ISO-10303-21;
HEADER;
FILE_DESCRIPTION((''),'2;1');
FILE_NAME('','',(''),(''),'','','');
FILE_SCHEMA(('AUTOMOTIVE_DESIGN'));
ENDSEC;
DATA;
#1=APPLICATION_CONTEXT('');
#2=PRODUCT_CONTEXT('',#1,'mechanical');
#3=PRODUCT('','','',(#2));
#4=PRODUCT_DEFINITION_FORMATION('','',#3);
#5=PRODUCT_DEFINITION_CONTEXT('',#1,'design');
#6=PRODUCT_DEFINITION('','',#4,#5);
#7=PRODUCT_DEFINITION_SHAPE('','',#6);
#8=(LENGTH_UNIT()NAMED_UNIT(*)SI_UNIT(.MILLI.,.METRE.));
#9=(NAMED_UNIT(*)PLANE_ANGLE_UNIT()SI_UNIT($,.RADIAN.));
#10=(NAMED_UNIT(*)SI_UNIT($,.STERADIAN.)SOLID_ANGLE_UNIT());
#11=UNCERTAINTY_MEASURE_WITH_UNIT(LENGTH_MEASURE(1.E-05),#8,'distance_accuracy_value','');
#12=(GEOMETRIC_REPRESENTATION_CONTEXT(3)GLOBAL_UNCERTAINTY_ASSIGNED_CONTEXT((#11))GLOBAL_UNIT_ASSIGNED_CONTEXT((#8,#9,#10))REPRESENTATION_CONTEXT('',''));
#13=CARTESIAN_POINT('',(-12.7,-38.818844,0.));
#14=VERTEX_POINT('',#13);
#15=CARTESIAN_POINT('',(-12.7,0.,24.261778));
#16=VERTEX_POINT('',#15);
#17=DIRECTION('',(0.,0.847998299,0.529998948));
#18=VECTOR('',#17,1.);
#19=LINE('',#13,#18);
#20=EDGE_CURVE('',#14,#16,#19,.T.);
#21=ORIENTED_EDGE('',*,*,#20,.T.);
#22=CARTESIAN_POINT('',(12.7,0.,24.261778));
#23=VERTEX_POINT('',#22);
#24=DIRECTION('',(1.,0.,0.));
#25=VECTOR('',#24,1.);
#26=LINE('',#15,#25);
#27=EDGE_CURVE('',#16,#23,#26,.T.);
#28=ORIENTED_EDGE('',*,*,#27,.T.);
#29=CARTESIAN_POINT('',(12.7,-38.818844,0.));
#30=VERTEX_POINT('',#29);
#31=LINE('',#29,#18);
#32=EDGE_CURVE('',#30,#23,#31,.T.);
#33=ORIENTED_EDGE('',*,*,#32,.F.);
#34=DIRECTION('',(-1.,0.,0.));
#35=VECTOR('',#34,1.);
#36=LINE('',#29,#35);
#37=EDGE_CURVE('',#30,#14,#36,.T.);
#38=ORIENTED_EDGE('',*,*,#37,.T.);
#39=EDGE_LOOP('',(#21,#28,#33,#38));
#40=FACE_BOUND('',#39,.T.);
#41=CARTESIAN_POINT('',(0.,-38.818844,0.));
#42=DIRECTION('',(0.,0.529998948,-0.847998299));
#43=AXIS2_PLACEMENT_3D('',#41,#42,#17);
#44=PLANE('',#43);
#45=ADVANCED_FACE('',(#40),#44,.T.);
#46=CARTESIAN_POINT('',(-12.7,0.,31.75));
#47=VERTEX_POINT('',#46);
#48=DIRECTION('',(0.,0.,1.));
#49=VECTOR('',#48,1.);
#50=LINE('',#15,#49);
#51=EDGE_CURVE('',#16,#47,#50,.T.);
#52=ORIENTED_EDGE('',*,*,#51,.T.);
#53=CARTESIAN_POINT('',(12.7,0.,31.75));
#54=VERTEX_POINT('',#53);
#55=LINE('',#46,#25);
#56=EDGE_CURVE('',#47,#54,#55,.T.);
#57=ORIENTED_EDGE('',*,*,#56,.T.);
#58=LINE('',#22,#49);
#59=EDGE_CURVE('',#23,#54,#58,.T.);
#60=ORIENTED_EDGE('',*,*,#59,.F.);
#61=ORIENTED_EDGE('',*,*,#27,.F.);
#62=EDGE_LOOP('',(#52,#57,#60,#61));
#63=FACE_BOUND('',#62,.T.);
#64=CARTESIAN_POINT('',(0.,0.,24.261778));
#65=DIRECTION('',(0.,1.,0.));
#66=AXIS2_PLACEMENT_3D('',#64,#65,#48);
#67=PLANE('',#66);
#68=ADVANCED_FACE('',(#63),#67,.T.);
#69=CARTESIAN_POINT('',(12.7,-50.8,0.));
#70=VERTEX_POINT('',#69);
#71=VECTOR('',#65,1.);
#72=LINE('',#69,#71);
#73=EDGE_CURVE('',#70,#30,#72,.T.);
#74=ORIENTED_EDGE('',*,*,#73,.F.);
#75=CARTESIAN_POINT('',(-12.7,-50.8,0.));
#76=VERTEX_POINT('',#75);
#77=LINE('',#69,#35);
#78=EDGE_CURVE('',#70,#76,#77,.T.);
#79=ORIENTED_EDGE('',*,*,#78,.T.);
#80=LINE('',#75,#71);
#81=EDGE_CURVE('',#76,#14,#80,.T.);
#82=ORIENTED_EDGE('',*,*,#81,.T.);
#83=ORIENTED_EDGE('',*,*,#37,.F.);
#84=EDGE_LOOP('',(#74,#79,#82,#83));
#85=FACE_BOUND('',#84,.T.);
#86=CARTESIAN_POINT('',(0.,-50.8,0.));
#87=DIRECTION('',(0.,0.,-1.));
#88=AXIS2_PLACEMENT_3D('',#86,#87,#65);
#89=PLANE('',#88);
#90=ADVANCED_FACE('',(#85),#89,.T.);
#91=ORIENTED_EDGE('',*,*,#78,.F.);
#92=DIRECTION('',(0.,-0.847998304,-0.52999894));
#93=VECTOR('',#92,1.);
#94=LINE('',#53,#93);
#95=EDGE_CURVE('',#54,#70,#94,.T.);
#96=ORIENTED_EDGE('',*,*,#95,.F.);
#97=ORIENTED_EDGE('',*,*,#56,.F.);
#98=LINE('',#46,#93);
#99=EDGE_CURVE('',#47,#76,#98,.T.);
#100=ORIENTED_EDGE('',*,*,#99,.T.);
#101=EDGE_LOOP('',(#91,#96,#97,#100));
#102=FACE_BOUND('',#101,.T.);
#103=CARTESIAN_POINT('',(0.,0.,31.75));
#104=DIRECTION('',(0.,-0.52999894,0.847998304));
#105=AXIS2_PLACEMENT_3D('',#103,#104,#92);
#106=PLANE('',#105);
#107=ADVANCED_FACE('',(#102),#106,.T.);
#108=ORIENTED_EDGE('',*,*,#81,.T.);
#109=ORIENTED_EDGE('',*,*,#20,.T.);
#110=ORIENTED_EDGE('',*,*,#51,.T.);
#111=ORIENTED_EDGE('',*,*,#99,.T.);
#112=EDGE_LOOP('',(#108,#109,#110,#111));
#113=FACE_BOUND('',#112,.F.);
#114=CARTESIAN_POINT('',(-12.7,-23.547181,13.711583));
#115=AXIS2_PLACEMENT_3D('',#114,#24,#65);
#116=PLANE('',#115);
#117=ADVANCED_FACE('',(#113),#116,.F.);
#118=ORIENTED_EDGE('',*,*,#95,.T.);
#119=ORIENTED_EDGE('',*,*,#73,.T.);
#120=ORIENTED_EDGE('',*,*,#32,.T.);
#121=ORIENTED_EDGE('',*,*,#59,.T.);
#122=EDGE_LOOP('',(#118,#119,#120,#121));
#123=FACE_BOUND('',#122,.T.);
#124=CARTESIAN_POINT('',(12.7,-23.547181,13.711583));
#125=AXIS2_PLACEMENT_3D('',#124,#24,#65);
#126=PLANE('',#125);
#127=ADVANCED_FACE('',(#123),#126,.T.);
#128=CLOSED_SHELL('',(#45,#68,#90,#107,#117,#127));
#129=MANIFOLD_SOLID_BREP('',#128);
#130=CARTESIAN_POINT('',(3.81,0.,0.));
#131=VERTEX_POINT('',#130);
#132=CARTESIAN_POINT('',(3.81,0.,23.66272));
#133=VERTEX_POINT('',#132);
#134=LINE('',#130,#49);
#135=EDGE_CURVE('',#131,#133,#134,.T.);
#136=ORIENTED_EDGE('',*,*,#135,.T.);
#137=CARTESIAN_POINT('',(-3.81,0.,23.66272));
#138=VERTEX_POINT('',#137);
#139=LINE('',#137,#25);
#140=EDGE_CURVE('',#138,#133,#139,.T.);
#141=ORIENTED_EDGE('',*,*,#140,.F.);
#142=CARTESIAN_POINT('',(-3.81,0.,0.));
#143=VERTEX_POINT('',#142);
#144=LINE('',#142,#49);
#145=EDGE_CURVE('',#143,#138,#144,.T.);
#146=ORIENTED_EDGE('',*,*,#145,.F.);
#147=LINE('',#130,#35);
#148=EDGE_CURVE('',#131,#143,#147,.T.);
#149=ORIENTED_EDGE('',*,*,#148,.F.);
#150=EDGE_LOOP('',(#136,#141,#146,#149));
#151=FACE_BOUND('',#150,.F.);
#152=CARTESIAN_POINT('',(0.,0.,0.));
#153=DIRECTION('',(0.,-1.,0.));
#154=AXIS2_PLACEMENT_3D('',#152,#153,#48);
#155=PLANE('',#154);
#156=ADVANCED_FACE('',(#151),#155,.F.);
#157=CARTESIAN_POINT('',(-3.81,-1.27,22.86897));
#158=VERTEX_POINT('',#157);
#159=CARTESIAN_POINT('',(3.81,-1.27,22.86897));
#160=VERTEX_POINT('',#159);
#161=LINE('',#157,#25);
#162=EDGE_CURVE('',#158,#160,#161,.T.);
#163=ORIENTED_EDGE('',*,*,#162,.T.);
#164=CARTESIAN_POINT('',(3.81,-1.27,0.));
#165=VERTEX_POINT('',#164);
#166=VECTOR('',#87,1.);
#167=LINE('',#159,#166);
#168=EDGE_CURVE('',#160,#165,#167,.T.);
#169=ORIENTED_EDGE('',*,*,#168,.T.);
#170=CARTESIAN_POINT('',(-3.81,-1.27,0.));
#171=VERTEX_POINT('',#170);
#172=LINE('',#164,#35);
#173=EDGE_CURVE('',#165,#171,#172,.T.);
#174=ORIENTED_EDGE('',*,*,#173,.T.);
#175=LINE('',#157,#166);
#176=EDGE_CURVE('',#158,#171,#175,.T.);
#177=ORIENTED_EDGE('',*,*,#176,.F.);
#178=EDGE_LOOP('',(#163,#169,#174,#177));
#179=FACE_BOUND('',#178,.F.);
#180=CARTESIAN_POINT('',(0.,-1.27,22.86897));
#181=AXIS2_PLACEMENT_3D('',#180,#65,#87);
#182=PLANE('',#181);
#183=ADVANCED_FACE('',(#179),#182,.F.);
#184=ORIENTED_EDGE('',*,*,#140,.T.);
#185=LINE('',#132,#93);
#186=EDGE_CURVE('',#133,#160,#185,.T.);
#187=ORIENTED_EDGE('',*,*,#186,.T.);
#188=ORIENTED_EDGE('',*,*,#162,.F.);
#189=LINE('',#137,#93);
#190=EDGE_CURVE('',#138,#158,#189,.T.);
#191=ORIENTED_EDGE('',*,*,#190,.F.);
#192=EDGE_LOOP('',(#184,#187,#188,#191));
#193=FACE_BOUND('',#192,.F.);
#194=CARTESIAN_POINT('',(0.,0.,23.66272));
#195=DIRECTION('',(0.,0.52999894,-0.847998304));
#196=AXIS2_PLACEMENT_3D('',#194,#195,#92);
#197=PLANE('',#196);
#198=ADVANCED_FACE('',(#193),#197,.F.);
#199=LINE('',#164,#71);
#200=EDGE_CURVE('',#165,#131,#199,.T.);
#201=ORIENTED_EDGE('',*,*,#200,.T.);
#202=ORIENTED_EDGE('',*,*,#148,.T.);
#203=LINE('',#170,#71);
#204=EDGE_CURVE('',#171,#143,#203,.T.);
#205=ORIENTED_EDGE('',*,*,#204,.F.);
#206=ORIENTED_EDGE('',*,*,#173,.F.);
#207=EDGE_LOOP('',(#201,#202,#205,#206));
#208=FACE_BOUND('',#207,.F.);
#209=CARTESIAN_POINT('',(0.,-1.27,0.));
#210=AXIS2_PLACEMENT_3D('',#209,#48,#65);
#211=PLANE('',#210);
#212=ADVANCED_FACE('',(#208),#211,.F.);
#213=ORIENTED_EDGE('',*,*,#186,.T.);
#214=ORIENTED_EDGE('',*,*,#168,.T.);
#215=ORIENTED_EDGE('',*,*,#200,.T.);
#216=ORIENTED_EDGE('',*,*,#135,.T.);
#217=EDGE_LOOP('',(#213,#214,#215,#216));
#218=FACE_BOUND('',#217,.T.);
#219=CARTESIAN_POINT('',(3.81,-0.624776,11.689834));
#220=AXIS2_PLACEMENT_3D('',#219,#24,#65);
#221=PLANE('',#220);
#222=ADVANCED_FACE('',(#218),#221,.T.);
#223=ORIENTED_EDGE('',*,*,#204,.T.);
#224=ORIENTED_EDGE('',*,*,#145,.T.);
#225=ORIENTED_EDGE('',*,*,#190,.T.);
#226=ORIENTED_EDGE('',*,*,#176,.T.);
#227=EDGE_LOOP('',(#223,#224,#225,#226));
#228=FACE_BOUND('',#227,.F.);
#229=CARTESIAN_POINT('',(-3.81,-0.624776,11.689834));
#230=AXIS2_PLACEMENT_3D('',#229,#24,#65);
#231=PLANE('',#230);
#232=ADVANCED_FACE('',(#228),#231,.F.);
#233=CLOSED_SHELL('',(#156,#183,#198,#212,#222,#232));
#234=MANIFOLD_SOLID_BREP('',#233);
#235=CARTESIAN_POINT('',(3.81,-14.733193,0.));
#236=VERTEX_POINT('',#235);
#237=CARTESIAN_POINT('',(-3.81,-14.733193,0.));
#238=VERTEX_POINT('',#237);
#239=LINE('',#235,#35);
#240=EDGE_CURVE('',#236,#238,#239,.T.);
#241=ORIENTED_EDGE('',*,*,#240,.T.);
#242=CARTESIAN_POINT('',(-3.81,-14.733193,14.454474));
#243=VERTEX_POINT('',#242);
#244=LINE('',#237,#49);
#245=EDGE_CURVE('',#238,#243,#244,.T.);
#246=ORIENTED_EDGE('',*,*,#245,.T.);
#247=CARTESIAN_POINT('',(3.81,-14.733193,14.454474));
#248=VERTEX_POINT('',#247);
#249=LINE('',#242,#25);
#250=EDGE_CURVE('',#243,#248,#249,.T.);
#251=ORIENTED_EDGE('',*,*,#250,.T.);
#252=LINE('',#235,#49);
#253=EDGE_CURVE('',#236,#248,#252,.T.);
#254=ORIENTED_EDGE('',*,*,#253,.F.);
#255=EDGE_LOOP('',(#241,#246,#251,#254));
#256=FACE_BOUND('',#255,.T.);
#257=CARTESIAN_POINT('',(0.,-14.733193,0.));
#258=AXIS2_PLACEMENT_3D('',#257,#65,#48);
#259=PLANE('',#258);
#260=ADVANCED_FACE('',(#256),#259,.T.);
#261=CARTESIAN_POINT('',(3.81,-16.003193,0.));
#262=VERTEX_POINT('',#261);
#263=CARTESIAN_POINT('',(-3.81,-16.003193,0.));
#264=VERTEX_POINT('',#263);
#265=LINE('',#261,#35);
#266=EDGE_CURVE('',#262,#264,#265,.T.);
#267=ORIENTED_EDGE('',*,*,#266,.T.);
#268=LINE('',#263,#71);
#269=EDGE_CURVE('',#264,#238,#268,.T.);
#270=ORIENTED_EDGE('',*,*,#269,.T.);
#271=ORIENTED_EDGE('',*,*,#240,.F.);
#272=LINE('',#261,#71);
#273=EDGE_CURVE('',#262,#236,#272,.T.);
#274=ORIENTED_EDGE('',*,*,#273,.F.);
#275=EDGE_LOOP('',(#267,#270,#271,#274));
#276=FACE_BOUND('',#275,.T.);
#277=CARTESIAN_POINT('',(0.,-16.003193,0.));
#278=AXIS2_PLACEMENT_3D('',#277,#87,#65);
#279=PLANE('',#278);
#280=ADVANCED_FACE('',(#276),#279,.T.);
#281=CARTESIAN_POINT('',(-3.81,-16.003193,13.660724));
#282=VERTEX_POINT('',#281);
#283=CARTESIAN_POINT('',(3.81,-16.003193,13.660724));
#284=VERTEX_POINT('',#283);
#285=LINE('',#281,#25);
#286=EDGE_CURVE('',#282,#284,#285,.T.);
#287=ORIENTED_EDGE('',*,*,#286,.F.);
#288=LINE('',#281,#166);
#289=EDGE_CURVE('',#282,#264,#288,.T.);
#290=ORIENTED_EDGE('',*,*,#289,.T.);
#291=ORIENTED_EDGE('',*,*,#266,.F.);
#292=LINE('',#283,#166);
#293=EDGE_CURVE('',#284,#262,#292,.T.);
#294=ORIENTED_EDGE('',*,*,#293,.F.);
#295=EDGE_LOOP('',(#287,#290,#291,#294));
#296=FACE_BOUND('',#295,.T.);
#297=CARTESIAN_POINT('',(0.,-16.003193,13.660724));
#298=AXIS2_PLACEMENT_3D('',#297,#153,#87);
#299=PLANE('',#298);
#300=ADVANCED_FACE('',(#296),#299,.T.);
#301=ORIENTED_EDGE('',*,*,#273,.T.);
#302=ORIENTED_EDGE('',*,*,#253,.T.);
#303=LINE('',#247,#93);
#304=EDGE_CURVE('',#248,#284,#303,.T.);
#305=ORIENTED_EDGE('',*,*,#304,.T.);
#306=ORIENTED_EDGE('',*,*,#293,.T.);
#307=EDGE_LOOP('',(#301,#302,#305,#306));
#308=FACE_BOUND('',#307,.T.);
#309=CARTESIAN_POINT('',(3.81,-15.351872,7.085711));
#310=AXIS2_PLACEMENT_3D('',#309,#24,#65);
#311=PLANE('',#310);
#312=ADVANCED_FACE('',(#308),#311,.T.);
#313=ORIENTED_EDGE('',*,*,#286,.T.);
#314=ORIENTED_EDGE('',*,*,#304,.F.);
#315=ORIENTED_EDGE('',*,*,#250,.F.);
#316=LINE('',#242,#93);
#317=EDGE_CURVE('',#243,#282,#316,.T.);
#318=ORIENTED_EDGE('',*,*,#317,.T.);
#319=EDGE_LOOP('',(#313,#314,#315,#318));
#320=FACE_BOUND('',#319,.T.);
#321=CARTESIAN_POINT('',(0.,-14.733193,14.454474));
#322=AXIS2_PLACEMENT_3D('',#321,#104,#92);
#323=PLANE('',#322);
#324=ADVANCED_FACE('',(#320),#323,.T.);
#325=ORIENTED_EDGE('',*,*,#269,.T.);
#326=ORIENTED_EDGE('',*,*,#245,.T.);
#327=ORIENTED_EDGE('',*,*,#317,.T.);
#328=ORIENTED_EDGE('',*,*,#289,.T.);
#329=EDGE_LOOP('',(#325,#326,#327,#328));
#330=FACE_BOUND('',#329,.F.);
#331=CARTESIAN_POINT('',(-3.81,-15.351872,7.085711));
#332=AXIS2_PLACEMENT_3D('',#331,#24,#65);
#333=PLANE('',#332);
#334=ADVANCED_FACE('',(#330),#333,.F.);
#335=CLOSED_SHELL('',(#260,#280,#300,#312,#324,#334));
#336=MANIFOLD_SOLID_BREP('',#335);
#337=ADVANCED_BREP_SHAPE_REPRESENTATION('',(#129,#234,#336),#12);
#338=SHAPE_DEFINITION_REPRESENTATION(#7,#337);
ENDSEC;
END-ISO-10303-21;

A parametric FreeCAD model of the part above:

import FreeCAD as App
import Part
import Sketcher
from FreeCAD import Vector
Q = App.Units.Quantity

doc = App.newDocument("Part")
params = doc.addObject("Spreadsheet::Sheet", "Params")
for row, (alias, value) in enumerate([
    ("pad1_length", "1 in"),
    ("sketch2_width", "0.05 in"),
    ("pad2_length", "0.3 in"),
], start=1):
    params.set(f"A{row}", alias)
    params.set(f"B{row}", "=" + value)
    params.setAlias(f"B{row}", alias)

body = doc.addObject("PartDesign::Body", "Body")

# Sketch on YZ plane
sketch1 = body.newObject("Sketcher::SketchObject", "Sketch")
sketch1.AttachmentSupport = (doc.getObject("YZ_Plane"), [""])
sketch1.MapMode = "FlatFace"
sketch1.addGeometry(Part.LineSegment(Vector(-39, 0, 0), Vector(0, 24, 0)), False)
sketch1.addGeometry(Part.LineSegment(Vector(0, 24, 0), Vector(0, 32, 0)), False)
sketch1.addGeometry(Part.LineSegment(Vector(0, 32, 0), Vector(-51, 0, 0)), False)
sketch1.addGeometry(Part.LineSegment(Vector(-51, 0, 0), Vector(-39, 0, 0)), False)
sketch1.addConstraint(Sketcher.Constraint("Coincident", 0, 2, 1, 1))
sketch1.addConstraint(Sketcher.Constraint("Coincident", 1, 2, 2, 1))
sketch1.addConstraint(Sketcher.Constraint("Coincident", 2, 2, 3, 1))
sketch1.addConstraint(Sketcher.Constraint("Coincident", 3, 2, 0, 1))
sketch1.addConstraint(Sketcher.Constraint("Vertical", 1))
sketch1.addConstraint(Sketcher.Constraint("Horizontal", 3))
sketch1.addConstraint(Sketcher.Constraint("PointOnObject", 0, 2, -2))
sketch1.addConstraint(Sketcher.Constraint("PointOnObject", 2, 2, -1))
sketch1.addConstraint(Sketcher.Constraint("Parallel", 0, 2))
sketch1.addConstraint(Sketcher.Constraint("DistanceX", 2, 2, -1, 1, Q("2 in")))
sketch1.addConstraint(Sketcher.Constraint("DistanceY", -1, 1, 1, 2, Q("1.25 in")))
sketch1.addConstraint(Sketcher.Constraint("Distance", 0, 45.77703))
pad1 = body.newObject("PartDesign::Pad", "Pad")
pad1.Profile = sketch1
pad1.setExpression("Length", "Params.pad1_length")
pad1.Midplane = True
body2 = doc.addObject("PartDesign::Body", "Body001")
body2.AllowCompound = True

# Sketch on YZ plane
sketch2 = body2.newObject("Sketcher::SketchObject", "Sketch001")
sketch2.AttachmentSupport = (doc.getObject("YZ_Plane001"), [""])
sketch2.MapMode = "FlatFace"
sketch2.addGeometry(Part.LineSegment(Vector(0, 0, 0), Vector(0, 23.7, 0)), False)
sketch2.addGeometry(Part.LineSegment(Vector(0, 23.7, 0), Vector(-1.3, 22.9, 0)), False)
sketch2.addGeometry(Part.LineSegment(Vector(-1.3, 22.9, 0), Vector(-1.3, 0, 0)), False)
sketch2.addGeometry(Part.LineSegment(Vector(-1.3, 0, 0), Vector(0, 0, 0)), False)
sketch2.addGeometry(Part.LineSegment(Vector(-14.7, 0, 0), Vector(-14.7, 14.5, 0)), False)
sketch2.addGeometry(Part.LineSegment(Vector(-14.7, 14.5, 0), Vector(-16, 13.7, 0)), False)
sketch2.addGeometry(Part.LineSegment(Vector(-16, 13.7, 0), Vector(-16, 0, 0)), False)
sketch2.addGeometry(Part.LineSegment(Vector(-16, 0, 0), Vector(-14.7, 0, 0)), False)
sketch2.addConstraint(Sketcher.Constraint("Coincident", 0, 2, 1, 1))
sketch2.addConstraint(Sketcher.Constraint("Coincident", 1, 2, 2, 1))
sketch2.addConstraint(Sketcher.Constraint("Coincident", 2, 2, 3, 1))
sketch2.addConstraint(Sketcher.Constraint("Coincident", 3, 2, 0, 1))
sketch2.addConstraint(Sketcher.Constraint("Coincident", 4, 2, 5, 1))
sketch2.addConstraint(Sketcher.Constraint("Coincident", 5, 2, 6, 1))
sketch2.addConstraint(Sketcher.Constraint("Coincident", 6, 2, 7, 1))
sketch2.addConstraint(Sketcher.Constraint("Coincident", 7, 2, 4, 1))
sketch2.addConstraint(Sketcher.Constraint("Vertical", 0))
sketch2.addConstraint(Sketcher.Constraint("Vertical", 2))
sketch2.addConstraint(Sketcher.Constraint("Horizontal", 3))
sketch2.addConstraint(Sketcher.Constraint("Vertical", 4))
sketch2.addConstraint(Sketcher.Constraint("Vertical", 6))
sketch2.addConstraint(Sketcher.Constraint("Horizontal", 7))
sketch2.addConstraint(Sketcher.Constraint("Coincident", 3, 2, -1, 1))
sketch2.addConstraint(Sketcher.Constraint("PointOnObject", 6, 2, -1))
sketch2.addConstraint(Sketcher.Constraint("Parallel", 1, 5))
sketch2.addConstraint(Sketcher.Constraint("Equal", 3, 7))
sketch2.addConstraint(Sketcher.Constraint("DistanceX", 3, 1, 3, 2, Q("0.05 in")))
sketch2.addConstraint(Sketcher.Constraint("DistanceY", 1, 2, 0, 2, Q("0.03125 in")))
sketch2.addConstraint(Sketcher.Constraint("DistanceY", 0, 1, 0, 2, 23.66272))
sketch2.addConstraint(Sketcher.Constraint("DistanceY", 4, 1, 4, 2, 14.454474))
sketch2.addConstraint(Sketcher.Constraint("DistanceX", 4, 2, -1, 1, 14.733193))
sketch2.setExpression("Constraints[18]", "Params.sketch2_width")
pad2 = body2.newObject("PartDesign::Pad", "Pad001")
pad2.Profile = sketch2
pad2.setExpression("Length", "Params.pad2_length")
pad2.Midplane = True

doc.recompute()
